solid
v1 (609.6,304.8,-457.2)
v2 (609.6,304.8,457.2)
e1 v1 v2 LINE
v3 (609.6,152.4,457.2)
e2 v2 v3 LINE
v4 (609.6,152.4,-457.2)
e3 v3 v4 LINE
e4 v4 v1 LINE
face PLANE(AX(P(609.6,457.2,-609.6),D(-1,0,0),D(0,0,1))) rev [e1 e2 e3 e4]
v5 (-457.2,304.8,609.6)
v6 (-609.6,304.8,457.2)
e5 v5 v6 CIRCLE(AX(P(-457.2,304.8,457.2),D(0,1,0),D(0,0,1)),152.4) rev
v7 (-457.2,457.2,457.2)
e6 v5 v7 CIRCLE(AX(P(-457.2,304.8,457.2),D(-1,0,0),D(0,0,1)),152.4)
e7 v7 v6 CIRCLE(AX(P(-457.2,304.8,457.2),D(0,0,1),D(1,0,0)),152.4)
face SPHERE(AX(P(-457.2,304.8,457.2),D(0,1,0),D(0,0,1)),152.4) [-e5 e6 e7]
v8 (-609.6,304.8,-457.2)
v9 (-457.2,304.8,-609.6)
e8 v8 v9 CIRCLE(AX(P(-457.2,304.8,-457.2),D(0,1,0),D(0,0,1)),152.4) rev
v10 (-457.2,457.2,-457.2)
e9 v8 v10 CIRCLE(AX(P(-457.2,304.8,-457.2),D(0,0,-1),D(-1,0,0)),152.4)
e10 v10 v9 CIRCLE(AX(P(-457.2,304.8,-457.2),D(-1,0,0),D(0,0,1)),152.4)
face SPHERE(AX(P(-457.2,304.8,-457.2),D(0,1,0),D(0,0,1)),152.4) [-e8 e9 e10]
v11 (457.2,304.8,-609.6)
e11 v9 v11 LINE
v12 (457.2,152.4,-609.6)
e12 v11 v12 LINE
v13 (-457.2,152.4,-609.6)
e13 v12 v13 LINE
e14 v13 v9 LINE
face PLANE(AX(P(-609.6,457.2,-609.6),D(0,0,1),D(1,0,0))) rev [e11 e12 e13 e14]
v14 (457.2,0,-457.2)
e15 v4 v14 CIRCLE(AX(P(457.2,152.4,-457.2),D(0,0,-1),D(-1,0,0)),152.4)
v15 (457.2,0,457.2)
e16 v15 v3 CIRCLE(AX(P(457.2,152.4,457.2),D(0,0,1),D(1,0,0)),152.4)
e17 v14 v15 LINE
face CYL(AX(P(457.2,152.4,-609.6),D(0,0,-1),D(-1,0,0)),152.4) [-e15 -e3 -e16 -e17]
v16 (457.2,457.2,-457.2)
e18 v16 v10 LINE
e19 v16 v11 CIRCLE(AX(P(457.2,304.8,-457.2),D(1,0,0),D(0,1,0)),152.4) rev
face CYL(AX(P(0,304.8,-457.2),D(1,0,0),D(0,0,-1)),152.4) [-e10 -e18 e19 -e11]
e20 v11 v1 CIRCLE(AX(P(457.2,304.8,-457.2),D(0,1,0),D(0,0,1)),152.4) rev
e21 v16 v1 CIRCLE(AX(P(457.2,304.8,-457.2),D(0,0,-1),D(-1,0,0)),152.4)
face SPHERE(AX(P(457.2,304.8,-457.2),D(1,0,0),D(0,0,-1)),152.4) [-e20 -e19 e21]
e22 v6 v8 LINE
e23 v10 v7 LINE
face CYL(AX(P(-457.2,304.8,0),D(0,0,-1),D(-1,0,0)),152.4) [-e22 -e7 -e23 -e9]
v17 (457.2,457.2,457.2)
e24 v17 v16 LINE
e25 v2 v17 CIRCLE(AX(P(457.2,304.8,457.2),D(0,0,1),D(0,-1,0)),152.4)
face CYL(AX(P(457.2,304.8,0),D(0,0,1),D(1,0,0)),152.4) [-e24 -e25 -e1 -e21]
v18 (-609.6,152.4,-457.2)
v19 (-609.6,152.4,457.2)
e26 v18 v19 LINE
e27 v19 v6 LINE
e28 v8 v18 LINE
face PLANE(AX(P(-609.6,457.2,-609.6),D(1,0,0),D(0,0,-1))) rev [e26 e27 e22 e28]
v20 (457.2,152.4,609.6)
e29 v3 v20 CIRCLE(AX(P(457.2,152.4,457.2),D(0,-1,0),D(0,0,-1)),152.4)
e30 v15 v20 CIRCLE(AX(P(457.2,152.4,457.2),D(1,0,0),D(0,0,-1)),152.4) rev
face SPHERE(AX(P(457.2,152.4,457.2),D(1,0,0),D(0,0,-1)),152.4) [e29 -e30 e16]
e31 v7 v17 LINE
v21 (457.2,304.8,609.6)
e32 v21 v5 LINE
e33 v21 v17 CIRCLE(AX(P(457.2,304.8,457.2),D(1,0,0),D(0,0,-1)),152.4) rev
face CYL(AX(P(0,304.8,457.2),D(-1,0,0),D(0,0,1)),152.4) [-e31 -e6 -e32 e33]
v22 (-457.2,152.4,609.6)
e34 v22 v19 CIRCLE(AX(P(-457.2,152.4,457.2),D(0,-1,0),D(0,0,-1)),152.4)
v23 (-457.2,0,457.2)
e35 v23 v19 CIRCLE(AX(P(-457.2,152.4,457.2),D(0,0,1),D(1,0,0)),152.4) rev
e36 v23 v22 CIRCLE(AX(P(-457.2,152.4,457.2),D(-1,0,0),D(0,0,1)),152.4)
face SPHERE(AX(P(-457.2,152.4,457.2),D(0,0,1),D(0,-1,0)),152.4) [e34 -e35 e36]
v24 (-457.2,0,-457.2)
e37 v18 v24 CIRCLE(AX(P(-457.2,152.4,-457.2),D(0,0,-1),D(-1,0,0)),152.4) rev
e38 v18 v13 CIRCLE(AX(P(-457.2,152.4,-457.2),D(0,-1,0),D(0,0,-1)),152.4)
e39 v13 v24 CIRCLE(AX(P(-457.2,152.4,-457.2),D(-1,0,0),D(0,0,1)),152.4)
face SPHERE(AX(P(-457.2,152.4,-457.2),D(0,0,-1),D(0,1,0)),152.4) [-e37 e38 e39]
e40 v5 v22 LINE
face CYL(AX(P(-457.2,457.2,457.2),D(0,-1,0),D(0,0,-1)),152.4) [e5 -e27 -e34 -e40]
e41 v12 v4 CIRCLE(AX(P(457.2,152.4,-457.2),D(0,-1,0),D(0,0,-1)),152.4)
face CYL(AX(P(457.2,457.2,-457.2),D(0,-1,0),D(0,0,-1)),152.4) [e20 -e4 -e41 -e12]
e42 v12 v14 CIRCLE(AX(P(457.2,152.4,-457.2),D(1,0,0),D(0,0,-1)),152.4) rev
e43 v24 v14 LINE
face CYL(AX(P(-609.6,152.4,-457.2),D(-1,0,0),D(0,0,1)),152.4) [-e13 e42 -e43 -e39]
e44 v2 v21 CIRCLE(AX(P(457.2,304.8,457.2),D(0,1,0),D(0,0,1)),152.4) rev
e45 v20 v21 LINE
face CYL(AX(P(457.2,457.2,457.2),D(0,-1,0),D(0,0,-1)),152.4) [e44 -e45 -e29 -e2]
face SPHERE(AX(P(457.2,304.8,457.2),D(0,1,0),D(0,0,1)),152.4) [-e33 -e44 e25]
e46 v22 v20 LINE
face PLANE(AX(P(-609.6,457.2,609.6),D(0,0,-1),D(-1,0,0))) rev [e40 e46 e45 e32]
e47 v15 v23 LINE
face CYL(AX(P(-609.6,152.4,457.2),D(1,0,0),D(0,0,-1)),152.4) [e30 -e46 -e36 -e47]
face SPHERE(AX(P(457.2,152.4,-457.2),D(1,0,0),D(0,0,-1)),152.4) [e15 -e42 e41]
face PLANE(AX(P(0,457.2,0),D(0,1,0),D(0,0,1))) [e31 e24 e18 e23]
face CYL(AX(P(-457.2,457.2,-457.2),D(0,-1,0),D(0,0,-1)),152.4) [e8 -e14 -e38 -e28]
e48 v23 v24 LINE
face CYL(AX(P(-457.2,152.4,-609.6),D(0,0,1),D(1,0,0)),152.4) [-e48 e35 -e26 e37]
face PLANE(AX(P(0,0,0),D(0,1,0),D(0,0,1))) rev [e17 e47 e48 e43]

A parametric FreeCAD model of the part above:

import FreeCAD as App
import Part
import Sketcher
from FreeCAD import Vector
Q = App.Units.Quantity

doc = App.newDocument("Part")
body = doc.addObject("PartDesign::Body", "Body")

sketch1 = doc.addObject("Sketcher::SketchObject", "Sketch")
body.addObject(sketch1)
sketch1.AttachmentSupport = (doc.XZ_Plane, [""])
sketch1.MapMode = "FlatFace"
sketch1.addGeometry([
    Part.LineSegment(Vector(-610, -610, 0), Vector(-610, 610, 0)),
    Part.LineSegment(Vector(-610, 610, 0), Vector(610, 610, 0)),
    Part.LineSegment(Vector(610, 610, 0), Vector(610, -610, 0)),
    Part.LineSegment(Vector(610, -610, 0), Vector(-610, -610, 0)),
], False)
sketch1.addConstraint([
    Sketcher.Constraint("Coincident", 0, 2, 1, 1),
    Sketcher.Constraint("Coincident", 1, 2, 2, 1),
    Sketcher.Constraint("Coincident", 2, 2, 3, 1),
    Sketcher.Constraint("Coincident", 3, 2, 0, 1),
    Sketcher.Constraint("Vertical", 0),
    Sketcher.Constraint("Horizontal", 1),
    Sketcher.Constraint("Vertical", 2),
    Sketcher.Constraint("Horizontal", 3),
    Sketcher.Constraint("Symmetric", 0, 2, 2, 2, -1, 1),
    Sketcher.Constraint("Equal", 3, 0),
    Sketcher.Constraint("DistanceX", 1, 1, 1, 2, Q("48 in")),
])
pad1 = doc.addObject("PartDesign::Pad", "Pad")
body.addObject(pad1)
pad1.Profile = sketch1
pad1.Length = Q("18 in")
pad1.Reversed = True
doc.recompute()

fillet = doc.addObject("PartDesign::Fillet", "Fillet")
body.addObject(fillet)
fillet.Base = (pad1, ["Edge1"])
fillet.UseAllEdges = True
fillet.Radius = Q("6 in")

doc.recompute()
